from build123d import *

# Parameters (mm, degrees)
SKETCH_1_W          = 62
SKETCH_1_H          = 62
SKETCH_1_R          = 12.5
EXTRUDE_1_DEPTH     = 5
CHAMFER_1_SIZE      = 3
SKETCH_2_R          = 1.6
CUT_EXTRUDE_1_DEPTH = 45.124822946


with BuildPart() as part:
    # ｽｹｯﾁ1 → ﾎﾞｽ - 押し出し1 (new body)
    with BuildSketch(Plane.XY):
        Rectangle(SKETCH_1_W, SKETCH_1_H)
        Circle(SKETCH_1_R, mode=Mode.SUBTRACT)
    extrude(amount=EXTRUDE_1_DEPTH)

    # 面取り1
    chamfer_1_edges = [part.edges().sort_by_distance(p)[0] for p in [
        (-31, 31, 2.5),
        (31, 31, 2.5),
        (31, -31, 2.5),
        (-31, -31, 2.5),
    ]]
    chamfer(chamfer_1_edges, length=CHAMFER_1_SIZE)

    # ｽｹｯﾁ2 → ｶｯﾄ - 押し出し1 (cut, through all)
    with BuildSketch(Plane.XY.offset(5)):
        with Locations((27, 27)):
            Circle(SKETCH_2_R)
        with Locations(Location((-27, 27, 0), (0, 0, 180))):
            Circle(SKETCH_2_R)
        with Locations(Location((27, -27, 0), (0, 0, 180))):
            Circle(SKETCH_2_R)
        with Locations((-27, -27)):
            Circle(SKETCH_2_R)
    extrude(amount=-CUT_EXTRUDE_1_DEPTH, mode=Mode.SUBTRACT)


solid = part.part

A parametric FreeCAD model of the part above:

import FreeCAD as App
import Part
import Sketcher


def edges_at(feature, points):
    """Names of the edges that pass closest to the given points."""
    edges = feature.Shape.Edges
    near = lambda p: min(range(len(edges)), key=lambda i: edges[i].distToShape(Part.Vertex(*p))[0])
    return sorted({f"Edge{near(p) + 1}" for p in points})


def add_polygon(sketch, points):
    """Adds a closed chain of lines whose ends are joined by coincident constraints."""
    first, n = sketch.GeometryCount, len(points)
    for a, b in zip(points, points[1:] + points[:1]):
        sketch.addGeometry(Part.LineSegment(App.Vector(*a, 0), App.Vector(*b, 0)), False)
    for i in range(n):
        sketch.addConstraint(Sketcher.Constraint("Coincident", first + i, 2, first + (i + 1) % n, 1))

doc = App.newDocument("Part")
body = doc.addObject("PartDesign::Body", "Body")

sketch1 = body.newObject("Sketcher::SketchObject", "Sketch")
sketch1.AttachmentSupport = (doc.getObject("XY_Plane"), [""])
sketch1.MapMode = "FlatFace"
add_polygon(sketch1, [(-31, 31), (-31, -31), (31, -31), (31, 31)])
sketch1.addGeometry(Part.Circle(App.Vector(0, 0, 0), App.Vector(0, 0, 1), 12), False)
sketch1.addConstraint([
    Sketcher.Constraint("Vertical", 0),
    Sketcher.Constraint("Horizontal", 1),
    Sketcher.Constraint("Vertical", 2),
    Sketcher.Constraint("Horizontal", 3),
    Sketcher.Constraint("Coincident", 4, 3, -1, 1),
    Sketcher.Constraint("Symmetric", 0, 2, 2, 2, -1, 1),
    Sketcher.Constraint("Equal", 3, 0),
    Sketcher.Constraint("Diameter", 4, 25.0),
    Sketcher.Constraint("DistanceX", 1, 1, 1, 2, 62.0),
])
pad1 = body.newObject("PartDesign::Pad", "Pad")
pad1.Profile = sketch1
pad1.Length = 5
doc.recompute()

chamfer = body.newObject("PartDesign::Chamfer", "Chamfer")
chamfer.Base = (pad1, edges_at(pad1, [
    (-31, 31, 2.5),
    (31, 31, 2.5),
    (31, -31, 2.5),
    (-31, -31, 2.5),
]))
chamfer.Size = 3

sketch2 = body.newObject("Sketcher::SketchObject", "Sketch001")
sketch2.AttachmentSupport = (doc.getObject("XY_Plane"), [""])
sketch2.MapMode = "FlatFace"
sketch2.AttachmentOffset = App.Placement(App.Vector(0, 0, 5), App.Rotation())
sketch2.addGeometry([
    Part.Circle(App.Vector(27, 27, 0), App.Vector(0, 0, 1), 1.6),
    Part.Circle(App.Vector(-27, 27, 0), App.Vector(0, 0, 1), 1.6),
    Part.Circle(App.Vector(27, -27, 0), App.Vector(0, 0, 1), 1.6),
    Part.Circle(App.Vector(-27, -27, 0), App.Vector(0, 0, 1), 1.6),
], False)
sketch2.addConstraint([
    Sketcher.Constraint("Equal", 0, 1),
    Sketcher.Constraint("Equal", 1, 2),
    Sketcher.Constraint("Equal", 2, 3),
    Sketcher.Constraint("Symmetric", 1, 3, 2, 3, -1, 1),
    Sketcher.Constraint("Symmetric", 0, 3, 3, 3, -1, 1),
    Sketcher.Constraint("Symmetric", 0, 3, 1, 3, -2),
    Sketcher.Constraint("Diameter", 0, 3.2),
    Sketcher.Constraint("DistanceX", -1, 1, 0, 3, 27.0),
    Sketcher.Constraint("DistanceY", -1, 1, 0, 3, 27.0),
])
pocket1 = body.newObject("PartDesign::Pocket", "Pocket")
pocket1.Profile = sketch2
pocket1.Type = "ThroughAll"

doc.recompute()
